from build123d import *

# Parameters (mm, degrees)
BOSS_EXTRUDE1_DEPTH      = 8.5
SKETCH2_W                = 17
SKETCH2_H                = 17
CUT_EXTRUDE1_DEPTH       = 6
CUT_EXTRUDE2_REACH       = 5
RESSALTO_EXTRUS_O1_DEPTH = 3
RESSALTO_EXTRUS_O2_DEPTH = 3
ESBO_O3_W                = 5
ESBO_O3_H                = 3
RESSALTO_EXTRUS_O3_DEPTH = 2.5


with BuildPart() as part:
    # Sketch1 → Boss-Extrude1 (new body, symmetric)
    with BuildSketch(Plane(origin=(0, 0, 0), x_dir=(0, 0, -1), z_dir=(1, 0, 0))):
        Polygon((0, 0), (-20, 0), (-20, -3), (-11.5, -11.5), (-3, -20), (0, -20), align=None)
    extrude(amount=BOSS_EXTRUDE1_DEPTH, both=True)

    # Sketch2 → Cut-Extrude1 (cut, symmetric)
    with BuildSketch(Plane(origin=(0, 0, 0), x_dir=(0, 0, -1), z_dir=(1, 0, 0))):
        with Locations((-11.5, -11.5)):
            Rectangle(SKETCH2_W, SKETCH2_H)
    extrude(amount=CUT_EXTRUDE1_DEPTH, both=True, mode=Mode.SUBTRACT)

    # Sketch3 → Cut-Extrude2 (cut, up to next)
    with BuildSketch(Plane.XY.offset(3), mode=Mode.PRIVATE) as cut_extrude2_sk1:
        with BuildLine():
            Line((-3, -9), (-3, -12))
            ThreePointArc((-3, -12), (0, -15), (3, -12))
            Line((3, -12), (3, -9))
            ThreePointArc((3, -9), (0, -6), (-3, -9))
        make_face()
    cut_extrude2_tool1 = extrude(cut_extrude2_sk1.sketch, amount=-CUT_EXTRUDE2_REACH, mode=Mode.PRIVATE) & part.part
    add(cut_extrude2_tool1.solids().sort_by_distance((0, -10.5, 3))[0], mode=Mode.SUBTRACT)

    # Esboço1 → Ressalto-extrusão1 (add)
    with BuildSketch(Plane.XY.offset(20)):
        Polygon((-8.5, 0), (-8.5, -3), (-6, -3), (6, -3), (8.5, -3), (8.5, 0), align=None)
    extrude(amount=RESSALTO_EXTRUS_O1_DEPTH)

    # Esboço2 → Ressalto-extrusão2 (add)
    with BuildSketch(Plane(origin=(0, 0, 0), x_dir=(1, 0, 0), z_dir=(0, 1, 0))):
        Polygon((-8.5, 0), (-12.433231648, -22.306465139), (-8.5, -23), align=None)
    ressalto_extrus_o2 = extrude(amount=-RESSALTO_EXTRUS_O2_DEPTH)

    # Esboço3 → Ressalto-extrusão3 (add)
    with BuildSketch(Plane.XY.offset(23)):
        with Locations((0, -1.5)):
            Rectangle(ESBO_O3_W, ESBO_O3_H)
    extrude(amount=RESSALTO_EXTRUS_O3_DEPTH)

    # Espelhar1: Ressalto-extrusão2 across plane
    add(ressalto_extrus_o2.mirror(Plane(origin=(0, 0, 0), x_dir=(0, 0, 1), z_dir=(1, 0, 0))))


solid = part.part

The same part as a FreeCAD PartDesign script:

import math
import FreeCAD as App
import Part
import Sketcher

V = App.Vector
Q = App.Units.Quantity

doc = App.newDocument("Part")
body = doc.addObject("PartDesign::Body", "Body")

# Sketch on YZ plane
sketch1 = body.newObject("Sketcher::SketchObject", "Sketch")
sketch1.AttachmentSupport = (doc.getObject("YZ_Plane"), [""])
sketch1.MapMode = "FlatFace"
sketch1.addGeometry(Part.LineSegment(V(0, 0, 0), V(0, 20, 0)), False)
sketch1.addGeometry(Part.LineSegment(V(0, 20, 0), V(-3, 20, 0)), False)
sketch1.addGeometry(Part.LineSegment(V(-3, 20, 0), V(-20, 3, 0)), False)
sketch1.addGeometry(Part.LineSegment(V(-20, 3, 0), V(-20, 0, 0)), False)
sketch1.addGeometry(Part.LineSegment(V(-20, 0, 0), V(0, 0, 0)), False)
sketch1.addConstraint(Sketcher.Constraint("Coincident", 0, 2, 1, 1))
sketch1.addConstraint(Sketcher.Constraint("Coincident", 1, 2, 2, 1))
sketch1.addConstraint(Sketcher.Constraint("Coincident", 2, 2, 3, 1))
sketch1.addConstraint(Sketcher.Constraint("Coincident", 3, 2, 4, 1))
sketch1.addConstraint(Sketcher.Constraint("Coincident", 4, 2, 0, 1))
sketch1.addConstraint(Sketcher.Constraint("Vertical", 0))
sketch1.addConstraint(Sketcher.Constraint("Horizontal", 1))
sketch1.addConstraint(Sketcher.Constraint("Vertical", 3))
sketch1.addConstraint(Sketcher.Constraint("Horizontal", 4))
sketch1.addConstraint(Sketcher.Constraint("Coincident", 4, 2, -1, 1))
sketch1.addConstraint(Sketcher.Constraint("Equal", 4, 0))
sketch1.addConstraint(Sketcher.Constraint("Equal", 1, 3))
sketch1.addConstraint(Sketcher.Constraint("DistanceX", 1, 2, 1, 1, Q("3 mm")))
sketch1.addConstraint(Sketcher.Constraint("DistanceX", 4, 1, 4, 2, Q("20 mm")))
pad1 = body.newObject("PartDesign::Pad", "Pad")
pad1.Profile = sketch1
pad1.Length = 17
pad1.Midplane = True

# Sketch on YZ plane
sketch2 = body.newObject("Sketcher::SketchObject", "Sketch001")
sketch2.AttachmentSupport = (doc.getObject("YZ_Plane"), [""])
sketch2.MapMode = "FlatFace"
sketch2.addGeometry(Part.LineSegment(V(-3, 20, 0), V(-20, 20, 0)), False)
sketch2.addGeometry(Part.LineSegment(V(-20, 20, 0), V(-20, 3, 0)), False)
sketch2.addGeometry(Part.LineSegment(V(-20, 3, 0), V(-3, 3, 0)), False)
sketch2.addGeometry(Part.LineSegment(V(-3, 3, 0), V(-3, 20, 0)), False)
sketch2.addConstraint(Sketcher.Constraint("Coincident", 0, 2, 1, 1))
sketch2.addConstraint(Sketcher.Constraint("Coincident", 1, 2, 2, 1))
sketch2.addConstraint(Sketcher.Constraint("Coincident", 2, 2, 3, 1))
sketch2.addConstraint(Sketcher.Constraint("Coincident", 3, 2, 0, 1))
sketch2.addConstraint(Sketcher.Constraint("Horizontal", 0))
sketch2.addConstraint(Sketcher.Constraint("Vertical", 1))
sketch2.addConstraint(Sketcher.Constraint("Horizontal", 2))
sketch2.addConstraint(Sketcher.Constraint("Vertical", 3))
sketch2.addConstraint(Sketcher.Constraint("Equal", 2, 1))
sketch2.addConstraint(Sketcher.Constraint("DistanceX", 0, 2, 0, 1, Q("17 mm")))
sketch2.addConstraint(Sketcher.Constraint("DistanceX", 0, 2, -1, 1, Q("20 mm")))
sketch2.addConstraint(Sketcher.Constraint("DistanceY", -1, 1, 0, 2, Q("20 mm")))
pocket1 = body.newObject("PartDesign::Pocket", "Pocket")
pocket1.Profile = sketch2
pocket1.Length = 12
pocket1.Midplane = True

# Sketch on XY plane
sketch3 = body.newObject("Sketcher::SketchObject", "Sketch002")
sketch3.AttachmentSupport = (doc.getObject("XY_Plane"), [""])
sketch3.MapMode = "FlatFace"
sketch3.AttachmentOffset = App.Placement(V(0, 0, 3), App.Rotation())
sketch3.addGeometry(Part.LineSegment(V(-3, -9, 0), V(-3, -12, 0)), False)
sketch3.addGeometry(Part.ArcOfCircle(Part.Circle(V(0, -12, 0), V(0, 0, 1), 3), math.radians(180), math.radians(360)), False)
sketch3.addGeometry(Part.LineSegment(V(3, -12, 0), V(3, -9, 0)), False)
sketch3.addGeometry(Part.ArcOfCircle(Part.Circle(V(0, -9, 0), V(0, 0, 1), 3), math.radians(0), math.radians(180)), False)
sketch3.addConstraint(Sketcher.Constraint("Tangent", 0, 2, 1, 1))
sketch3.addConstraint(Sketcher.Constraint("Tangent", 1, 2, 2, 1))
sketch3.addConstraint(Sketcher.Constraint("Tangent", 2, 2, 3, 1))
sketch3.addConstraint(Sketcher.Constraint("Tangent", 3, 2, 0, 1))
sketch3.addConstraint(Sketcher.Constraint("Vertical", 0))
sketch3.addConstraint(Sketcher.Constraint("Vertical", 2))
sketch3.addConstraint(Sketcher.Constraint("PointOnObject", 1, 3, -2))
sketch3.addConstraint(Sketcher.Constraint("Radius", 1, Q("3 mm")))
sketch3.addConstraint(Sketcher.Constraint("DistanceY", 0, 2, 0, 1, Q("3 mm")))
sketch3.addConstraint(Sketcher.Constraint("DistanceY", 1, 3, -1, 1, Q("12 mm")))
pocket2 = body.newObject("PartDesign::Pocket", "Pocket001")
pocket2.Profile = sketch3
pocket2.Type = "UpToFirst"

# Sketch on XY plane
sketch4 = body.newObject("Sketcher::SketchObject", "Sketch003")
sketch4.AttachmentSupport = (doc.getObject("XY_Plane"), [""])
sketch4.MapMode = "FlatFace"
sketch4.AttachmentOffset = App.Placement(V(0, 0, 20), App.Rotation())
sketch4.addGeometry(Part.LineSegment(V(-8.5, 0, 0), V(-8.5, -3, 0)), False)
sketch4.addGeometry(Part.LineSegment(V(-8.5, -3, 0), V(8.5, -3, 0)), False)
sketch4.addGeometry(Part.LineSegment(V(8.5, -3, 0), V(8.5, 0, 0)), False)
sketch4.addGeometry(Part.LineSegment(V(8.5, 0, 0), V(-8.5, 0, 0)), False)
sketch4.addConstraint(Sketcher.Constraint("Coincident", 0, 2, 1, 1))
sketch4.addConstraint(Sketcher.Constraint("Coincident", 1, 2, 2, 1))
sketch4.addConstraint(Sketcher.Constraint("Coincident", 2, 2, 3, 1))
sketch4.addConstraint(Sketcher.Constraint("Coincident", 3, 2, 0, 1))
sketch4.addConstraint(Sketcher.Constraint("Vertical", 0))
sketch4.addConstraint(Sketcher.Constraint("Horizontal", 1))
sketch4.addConstraint(Sketcher.Constraint("Vertical", 2))
sketch4.addConstraint(Sketcher.Constraint("Horizontal", 3))
sketch4.addConstraint(Sketcher.Constraint("Symmetric", 2, 2, 3, 2, -1, 1))
sketch4.addConstraint(Sketcher.Constraint("DistanceX", 1, 1, 1, 2, Q("17 mm")))
sketch4.addConstraint(Sketcher.Constraint("DistanceY", 0, 2, 0, 1, Q("3 mm")))
pad2 = body.newObject("PartDesign::Pad", "Pad001")
pad2.Profile = sketch4
pad2.Length = 3

# Sketch on XZ plane
sketch5 = body.newObject("Sketcher::SketchObject", "Sketch004")
sketch5.AttachmentSupport = (doc.getObject("XZ_Plane"), [""])
sketch5.MapMode = "FlatFace"
sketch5.addGeometry(Part.LineSegment(V(-8.5, 0, 0), V(-12.433232, 22.306465, 0)), False)
sketch5.addGeometry(Part.LineSegment(V(-12.433232, 22.306465, 0), V(-8.5, 23, 0)), False)
sketch5.addGeometry(Part.LineSegment(V(-8.5, 23, 0), V(-8.5, 0, 0)), False)
sketch5.addConstraint(Sketcher.Constraint("Coincident", 0, 2, 1, 1))
sketch5.addConstraint(Sketcher.Constraint("Coincident", 1, 2, 2, 1))
sketch5.addConstraint(Sketcher.Constraint("Coincident", 2, 2, 0, 1))
sketch5.addConstraint(Sketcher.Constraint("Vertical", 2))
sketch5.addConstraint(Sketcher.Constraint("PointOnObject", 2, 2, -1))
sketch5.addConstraint(Sketcher.Constraint("Perpendicular", 0, 1))
sketch5.addConstraint(Sketcher.Constraint("DistanceY", 2, 2, 2, 1, Q("23 mm")))
sketch5.addConstraint(Sketcher.Constraint("Angle", 0, Q("100 deg")))
sketch5.addConstraint(Sketcher.Constraint("DistanceX", 1, 2, -1, 1, Q("8.5 mm")))
pad3 = body.newObject("PartDesign::Pad", "Pad002")
pad3.Profile = sketch5
pad3.Length = 3

# Sketch on XY plane
sketch6 = body.newObject("Sketcher::SketchObject", "Sketch005")
sketch6.AttachmentSupport = (doc.getObject("XY_Plane"), [""])
sketch6.MapMode = "FlatFace"
sketch6.AttachmentOffset = App.Placement(V(0, 0, 23), App.Rotation())
sketch6.addGeometry(Part.LineSegment(V(-2.5, 0, 0), V(-2.5, -3, 0)), False)
sketch6.addGeometry(Part.LineSegment(V(-2.5, -3, 0), V(2.5, -3, 0)), False)
sketch6.addGeometry(Part.LineSegment(V(2.5, -3, 0), V(2.5, 0, 0)), False)
sketch6.addGeometry(Part.LineSegment(V(2.5, 0, 0), V(-2.5, 0, 0)), False)
sketch6.addConstraint(Sketcher.Constraint("Coincident", 0, 2, 1, 1))
sketch6.addConstraint(Sketcher.Constraint("Coincident", 1, 2, 2, 1))
sketch6.addConstraint(Sketcher.Constraint("Coincident", 2, 2, 3, 1))
sketch6.addConstraint(Sketcher.Constraint("Coincident", 3, 2, 0, 1))
sketch6.addConstraint(Sketcher.Constraint("Vertical", 0))
sketch6.addConstraint(Sketcher.Constraint("Horizontal", 1))
sketch6.addConstraint(Sketcher.Constraint("Vertical", 2))
sketch6.addConstraint(Sketcher.Constraint("Horizontal", 3))
sketch6.addConstraint(Sketcher.Constraint("Symmetric", 2, 2, 3, 2, -1, 1))
sketch6.addConstraint(Sketcher.Constraint("DistanceX", 1, 1, 1, 2, Q("5 mm")))
sketch6.addConstraint(Sketcher.Constraint("DistanceY", 0, 2, 0, 1, Q("3 mm")))
pad4 = body.newObject("PartDesign::Pad", "Pad003")
pad4.Profile = sketch6
pad4.Length = 2.5
doc.recompute()

mirrored = body.newObject("PartDesign::Mirrored", "Mirrored")
mirrored.Originals = [pad3]
mirrored.MirrorPlane = (doc.getObject("YZ_Plane"), [""])
body.Tip = mirrored

doc.recompute()
